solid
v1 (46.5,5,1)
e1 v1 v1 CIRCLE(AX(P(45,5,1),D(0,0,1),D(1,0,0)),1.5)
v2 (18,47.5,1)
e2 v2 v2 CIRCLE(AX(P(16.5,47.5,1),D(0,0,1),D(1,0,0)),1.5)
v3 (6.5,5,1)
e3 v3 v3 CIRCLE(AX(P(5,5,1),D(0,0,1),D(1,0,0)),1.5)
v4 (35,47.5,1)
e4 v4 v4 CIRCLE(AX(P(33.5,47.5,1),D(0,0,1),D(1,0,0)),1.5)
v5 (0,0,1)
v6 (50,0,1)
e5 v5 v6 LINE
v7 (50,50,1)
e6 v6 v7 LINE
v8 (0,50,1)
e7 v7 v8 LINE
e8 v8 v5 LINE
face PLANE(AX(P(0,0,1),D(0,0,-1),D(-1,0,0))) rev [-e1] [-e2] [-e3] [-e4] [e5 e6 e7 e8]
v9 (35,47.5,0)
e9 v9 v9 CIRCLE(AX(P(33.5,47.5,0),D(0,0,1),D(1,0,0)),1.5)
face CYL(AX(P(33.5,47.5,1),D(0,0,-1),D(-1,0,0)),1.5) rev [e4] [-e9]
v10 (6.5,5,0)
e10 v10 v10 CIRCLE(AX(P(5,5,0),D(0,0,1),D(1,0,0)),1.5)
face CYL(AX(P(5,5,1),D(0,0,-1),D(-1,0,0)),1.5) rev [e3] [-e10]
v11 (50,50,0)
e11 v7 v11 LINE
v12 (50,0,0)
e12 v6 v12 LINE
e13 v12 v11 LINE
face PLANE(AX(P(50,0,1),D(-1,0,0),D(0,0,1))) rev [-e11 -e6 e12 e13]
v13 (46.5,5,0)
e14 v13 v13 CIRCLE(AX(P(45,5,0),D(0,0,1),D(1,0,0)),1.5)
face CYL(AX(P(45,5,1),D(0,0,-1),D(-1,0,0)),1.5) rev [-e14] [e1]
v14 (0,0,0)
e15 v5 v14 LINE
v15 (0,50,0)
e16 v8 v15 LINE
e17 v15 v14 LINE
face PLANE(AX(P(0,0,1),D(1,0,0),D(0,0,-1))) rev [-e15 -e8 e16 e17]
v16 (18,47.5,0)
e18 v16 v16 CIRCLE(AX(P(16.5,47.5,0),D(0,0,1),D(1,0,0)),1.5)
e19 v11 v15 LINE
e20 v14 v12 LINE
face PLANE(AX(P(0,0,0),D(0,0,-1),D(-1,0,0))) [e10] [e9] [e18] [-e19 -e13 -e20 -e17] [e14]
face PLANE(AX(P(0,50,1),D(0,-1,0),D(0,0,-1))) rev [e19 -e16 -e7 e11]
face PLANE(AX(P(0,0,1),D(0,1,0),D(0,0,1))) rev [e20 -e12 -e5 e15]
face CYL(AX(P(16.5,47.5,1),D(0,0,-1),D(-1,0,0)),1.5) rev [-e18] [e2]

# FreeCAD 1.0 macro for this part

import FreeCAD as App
import Part
import Sketcher
Q = App.Units.Quantity

doc = App.newDocument("Part")
body = doc.addObject("PartDesign::Body", "Body")

# Sketch on XY plane
sketch1 = doc.addObject("Sketcher::SketchObject", "Sketch")
body.addObject(sketch1)
sketch1.AttachmentSupport = (doc.XY_Plane, [""])
sketch1.MapMode = "FlatFace"
sketch1.addGeometry(Part.LineSegment(App.Vector(0, 50, 0), App.Vector(0, 0, 0)), False)
sketch1.addGeometry(Part.LineSegment(App.Vector(0, 0, 0), App.Vector(50, 0, 0)), False)
sketch1.addGeometry(Part.LineSegment(App.Vector(50, 0, 0), App.Vector(50, 50, 0)), False)
sketch1.addGeometry(Part.LineSegment(App.Vector(50, 50, 0), App.Vector(0, 50, 0)), False)
sketch1.addGeometry(Part.Circle(App.Vector(5, 5, 0), App.Vector(0, 0, 1), 1.5), False)
sketch1.addGeometry(Part.Circle(App.Vector(45, 5, 0), App.Vector(0, 0, 1), 1.5), False)
sketch1.addGeometry(Part.Circle(App.Vector(16.5, 47.5, 0), App.Vector(0, 0, 1), 1.5), False)
sketch1.addGeometry(Part.Circle(App.Vector(33.5, 47.5, 0), App.Vector(0, 0, 1), 1.5), False)
sketch1.addConstraint(Sketcher.Constraint("Coincident", 0, 2, 1, 1))
sketch1.addConstraint(Sketcher.Constraint("Coincident", 1, 2, 2, 1))
sketch1.addConstraint(Sketcher.Constraint("Coincident", 2, 2, 3, 1))
sketch1.addConstraint(Sketcher.Constraint("Coincident", 3, 2, 0, 1))
sketch1.addConstraint(Sketcher.Constraint("Vertical", 0))
sketch1.addConstraint(Sketcher.Constraint("Horizontal", 1))
sketch1.addConstraint(Sketcher.Constraint("Vertical", 2))
sketch1.addConstraint(Sketcher.Constraint("Horizontal", 3))
sketch1.addConstraint(Sketcher.Constraint("Coincident", 0, 2, -1, 1))
sketch1.addConstraint(Sketcher.Constraint("Equal", 4, 5))
sketch1.addConstraint(Sketcher.Constraint("Equal", 5, 6))
sketch1.addConstraint(Sketcher.Constraint("Equal", 6, 7))
sketch1.addConstraint(Sketcher.Constraint("Horizontal", 4, 3, 5, 3))
sketch1.addConstraint(Sketcher.Constraint("Horizontal", 6, 3, 7, 3))
sketch1.addConstraint(Sketcher.Constraint("Equal", 3, 0))
sketch1.addConstraint(Sketcher.Constraint("Diameter", 4, Q("3 mm")))
sketch1.addConstraint(Sketcher.Constraint("DistanceX", 1, 1, 1, 2, Q("50 mm")))
sketch1.addConstraint(Sketcher.Constraint("DistanceX", -1, 1, 4, 3, Q("5 mm")))
sketch1.addConstraint(Sketcher.Constraint("DistanceY", -1, 1, 4, 3, Q("5 mm")))
sketch1.addConstraint(Sketcher.Constraint("DistanceX", -1, 1, 5, 3, Q("45 mm")))
sketch1.addConstraint(Sketcher.Constraint("DistanceX", 6, 3, 7, 3, Q("17 mm")))
sketch1.addConstraint(Sketcher.Constraint("DistanceX", -1, 1, 6, 3, Q("16.5 mm")))
sketch1.addConstraint(Sketcher.Constraint("DistanceY", -1, 1, 6, 3, Q("47.5 mm")))
pad1 = doc.addObject("PartDesign::Pad", "Pad")
body.addObject(pad1)
pad1.Profile = sketch1
pad1.Length = 1

doc.recompute()
